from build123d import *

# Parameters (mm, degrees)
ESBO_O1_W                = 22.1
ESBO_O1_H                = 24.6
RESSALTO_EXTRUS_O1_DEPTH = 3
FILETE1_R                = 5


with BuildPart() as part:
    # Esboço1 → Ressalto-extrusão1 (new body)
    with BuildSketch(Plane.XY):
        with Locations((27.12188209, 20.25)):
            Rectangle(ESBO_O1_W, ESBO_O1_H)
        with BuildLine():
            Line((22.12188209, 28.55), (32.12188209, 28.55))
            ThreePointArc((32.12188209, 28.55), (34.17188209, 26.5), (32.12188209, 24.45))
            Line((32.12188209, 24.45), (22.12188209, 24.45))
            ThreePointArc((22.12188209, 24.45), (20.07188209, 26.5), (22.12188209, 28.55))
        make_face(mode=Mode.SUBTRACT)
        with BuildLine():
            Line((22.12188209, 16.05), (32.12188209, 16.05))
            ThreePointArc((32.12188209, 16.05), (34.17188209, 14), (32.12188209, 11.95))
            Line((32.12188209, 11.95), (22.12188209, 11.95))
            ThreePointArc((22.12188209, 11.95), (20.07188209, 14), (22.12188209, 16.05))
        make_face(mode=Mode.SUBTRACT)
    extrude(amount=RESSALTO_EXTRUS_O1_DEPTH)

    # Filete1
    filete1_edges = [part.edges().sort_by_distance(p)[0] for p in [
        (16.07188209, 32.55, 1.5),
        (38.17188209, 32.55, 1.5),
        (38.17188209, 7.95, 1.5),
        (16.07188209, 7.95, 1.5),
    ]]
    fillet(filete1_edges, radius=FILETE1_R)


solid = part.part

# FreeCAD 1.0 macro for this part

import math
import FreeCAD as App
import Part
import Sketcher
from FreeCAD import Vector


def edges_at(feature, points):
    """Names of the edges that pass closest to the given points."""
    edges = feature.Shape.Edges
    near = lambda p: min(range(len(edges)), key=lambda i: edges[i].distToShape(Part.Vertex(*p))[0])
    return sorted({f"Edge{near(p) + 1}" for p in points})

doc = App.newDocument("Part")
body = doc.addObject("PartDesign::Body", "Body")

sketch1 = body.newObject("Sketcher::SketchObject", "Sketch")
sketch1.AttachmentSupport = (doc.getObject("XY_Plane"), [""])
sketch1.MapMode = "FlatFace"
sketch1.addGeometry([
    Part.LineSegment(Vector(16.1, 32.5, 0), Vector(16.1, 8, 0)),
    Part.LineSegment(Vector(16.1, 8, 0), Vector(38.2, 8, 0)),
    Part.LineSegment(Vector(38.2, 8, 0), Vector(38.2, 32.5, 0)),
    Part.LineSegment(Vector(38.2, 32.5, 0), Vector(16.1, 32.5, 0)),
    Part.ArcOfCircle(Part.Circle(Vector(22.1, 14, 0), Vector(0, 0, 1), 2), math.radians(90), math.radians(270)),
    Part.LineSegment(Vector(22.1, 16.1, 0), Vector(32.1, 16.1, 0)),
    Part.ArcOfCircle(Part.Circle(Vector(32.1, 14, 0), Vector(0, 0, 1), 2), math.radians(-90), math.radians(90)),
    Part.LineSegment(Vector(32.1, 11.9, 0), Vector(22.1, 11.9, 0)),
    Part.ArcOfCircle(Part.Circle(Vector(22.1, 26.5, 0), Vector(0, 0, 1), 2), math.radians(90), math.radians(270)),
    Part.LineSegment(Vector(22.1, 28.6, 0), Vector(32.1, 28.6, 0)),
    Part.ArcOfCircle(Part.Circle(Vector(32.1, 26.5, 0), Vector(0, 0, 1), 2), math.radians(-90), math.radians(90)),
    Part.LineSegment(Vector(32.1, 24.4, 0), Vector(22.1, 24.4, 0)),
], False)
sketch1.addConstraint([
    Sketcher.Constraint("Coincident", 0, 2, 1, 1),
    Sketcher.Constraint("Coincident", 1, 2, 2, 1),
    Sketcher.Constraint("Coincident", 2, 2, 3, 1),
    Sketcher.Constraint("Coincident", 3, 2, 0, 1),
    Sketcher.Constraint("Tangent", 4, 1, 5, 1),
    Sketcher.Constraint("Tangent", 5, 2, 6, 2),
    Sketcher.Constraint("Tangent", 6, 1, 7, 1),
    Sketcher.Constraint("Tangent", 7, 2, 4, 2),
    Sketcher.Constraint("Tangent", 8, 1, 9, 1),
    Sketcher.Constraint("Tangent", 9, 2, 10, 2),
    Sketcher.Constraint("Tangent", 10, 1, 11, 1),
    Sketcher.Constraint("Tangent", 11, 2, 8, 2),
    Sketcher.Constraint("Vertical", 0),
    Sketcher.Constraint("Horizontal", 1),
    Sketcher.Constraint("Vertical", 2),
    Sketcher.Constraint("Horizontal", 3),
    Sketcher.Constraint("Horizontal", 5),
    Sketcher.Constraint("Horizontal", 7),
    Sketcher.Constraint("Horizontal", 9),
    Sketcher.Constraint("Horizontal", 11),
    Sketcher.Constraint("Equal", 6, 8),
    Sketcher.Constraint("Vertical", 4, 3, 8, 3),
    Sketcher.Constraint("Vertical", 6, 3, 10, 3),
    Sketcher.Constraint("DistanceX", 5, 1, 5, 2, 10.0),
    Sketcher.Constraint("Radius", 4, 2.05),
    Sketcher.Constraint("DistanceX", 1, 1, 1, 2, 22.1),
    Sketcher.Constraint("DistanceY", 0, 2, 0, 1, 24.6),
    Sketcher.Constraint("DistanceY", -1, 1, 4, 3, 14.0),
    Sketcher.Constraint("DistanceY", 1, 2, 6, 1, 4.0),
    Sketcher.Constraint("DistanceY", 8, 1, 3, 2, 4.0),
    Sketcher.Constraint("DistanceX", 0, 2, 4, 3, 6.05),
    Sketcher.Constraint("DistanceX", -1, 1, 4, 3, 22.121882),
])
pad1 = body.newObject("PartDesign::Pad", "Pad")
pad1.Profile = sketch1
pad1.Length = 3
doc.recompute()

fillet = body.newObject("PartDesign::Fillet", "Fillet")
fillet.Base = (pad1, edges_at(pad1, [
    (16.072, 32.55, 1.5),
    (38.172, 32.55, 1.5),
    (38.172, 7.95, 1.5),
    (16.072, 7.95, 1.5),
]))
fillet.Radius = 5

doc.recompute()
